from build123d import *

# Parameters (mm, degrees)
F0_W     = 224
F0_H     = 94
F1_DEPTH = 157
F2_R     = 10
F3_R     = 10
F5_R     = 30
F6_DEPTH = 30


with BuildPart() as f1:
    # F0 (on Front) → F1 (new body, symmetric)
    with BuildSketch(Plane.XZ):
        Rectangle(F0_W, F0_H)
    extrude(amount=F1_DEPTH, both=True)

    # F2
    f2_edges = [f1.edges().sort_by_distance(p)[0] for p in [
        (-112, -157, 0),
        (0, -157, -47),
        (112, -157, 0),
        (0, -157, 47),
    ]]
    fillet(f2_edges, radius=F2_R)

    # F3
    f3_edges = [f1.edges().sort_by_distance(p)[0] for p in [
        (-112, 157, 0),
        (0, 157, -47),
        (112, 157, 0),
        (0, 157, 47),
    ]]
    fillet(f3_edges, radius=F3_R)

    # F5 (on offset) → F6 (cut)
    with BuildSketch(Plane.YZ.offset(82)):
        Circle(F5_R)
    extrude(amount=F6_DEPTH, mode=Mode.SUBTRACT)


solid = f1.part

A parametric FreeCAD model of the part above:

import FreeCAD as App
import Part
import Sketcher

V = App.Vector


def edges_at(feature, points):
    """Names of the edges that pass closest to the given points."""
    edges = feature.Shape.Edges
    near = lambda p: min(range(len(edges)), key=lambda i: edges[i].distToShape(Part.Vertex(*p))[0])
    return sorted({f"Edge{near(p) + 1}" for p in points})


def add_polygon(sketch, points):
    """Adds a closed chain of lines whose ends are joined by coincident constraints."""
    first, n = sketch.GeometryCount, len(points)
    for a, b in zip(points, points[1:] + points[:1]):
        sketch.addGeometry(Part.LineSegment(App.Vector(*a, 0), App.Vector(*b, 0)), False)
    for i in range(n):
        sketch.addConstraint(Sketcher.Constraint("Coincident", first + i, 2, first + (i + 1) % n, 1))

doc = App.newDocument("Part")
body = doc.addObject("PartDesign::Body", "Body")

# Sketch on XZ plane
sketch1 = body.newObject("Sketcher::SketchObject", "Sketch")
sketch1.AttachmentSupport = (doc.getObject("XZ_Plane"), [""])
sketch1.MapMode = "FlatFace"
add_polygon(sketch1, [(-112, 47), (-112, -47), (112, -47), (112, 47)])  # lines 0-3
sketch1.addConstraint([
    Sketcher.Constraint("Vertical", 0),
    Sketcher.Constraint("Horizontal", 1),
    Sketcher.Constraint("Vertical", 2),
    Sketcher.Constraint("Horizontal", 3),
    Sketcher.Constraint("Symmetric", 0, 2, 2, 2, -1, 1),
    Sketcher.Constraint("DistanceX", 1, 1, 1, 2, 224.0),
    Sketcher.Constraint("DistanceY", 0, 2, 0, 1, 94.0),
])
pad1 = body.newObject("PartDesign::Pad", "Pad")
pad1.Profile = sketch1
pad1.Length = 314
pad1.Midplane = True
doc.recompute()

fillet = body.newObject("PartDesign::Fillet", "Fillet")
fillet.Base = (pad1, edges_at(pad1, [
    (-112, -157, 0),
    (0, -157, -47),
    (112, -157, 0),
    (0, -157, 47),
]))
fillet.Radius = 10
doc.recompute()

fillet2 = body.newObject("PartDesign::Fillet", "Fillet001")
fillet2.Base = (fillet, edges_at(fillet, [
    (-112, 157, 0),
    (0, 157, -47),
    (112, 157, 0),
    (0, 157, 47),
]))
fillet2.Radius = 10

# Sketch on YZ plane
sketch2 = body.newObject("Sketcher::SketchObject", "Sketch001")
sketch2.AttachmentSupport = (doc.getObject("YZ_Plane"), [""])
sketch2.MapMode = "FlatFace"
sketch2.AttachmentOffset = App.Placement(V(0, 0, 82), App.Rotation())
sketch2.addGeometry(Part.Circle(V(0, 0, 0), V(0, 0, 1), 30), False)
sketch2.addConstraint([
    Sketcher.Constraint("Coincident", 0, 3, -1, 1),
    Sketcher.Constraint("Diameter", 0, 60.0),
])
pocket1 = body.newObject("PartDesign::Pocket", "Pocket")
pocket1.Profile = sketch2
pocket1.Length = 30
pocket1.Reversed = True

doc.recompute()
